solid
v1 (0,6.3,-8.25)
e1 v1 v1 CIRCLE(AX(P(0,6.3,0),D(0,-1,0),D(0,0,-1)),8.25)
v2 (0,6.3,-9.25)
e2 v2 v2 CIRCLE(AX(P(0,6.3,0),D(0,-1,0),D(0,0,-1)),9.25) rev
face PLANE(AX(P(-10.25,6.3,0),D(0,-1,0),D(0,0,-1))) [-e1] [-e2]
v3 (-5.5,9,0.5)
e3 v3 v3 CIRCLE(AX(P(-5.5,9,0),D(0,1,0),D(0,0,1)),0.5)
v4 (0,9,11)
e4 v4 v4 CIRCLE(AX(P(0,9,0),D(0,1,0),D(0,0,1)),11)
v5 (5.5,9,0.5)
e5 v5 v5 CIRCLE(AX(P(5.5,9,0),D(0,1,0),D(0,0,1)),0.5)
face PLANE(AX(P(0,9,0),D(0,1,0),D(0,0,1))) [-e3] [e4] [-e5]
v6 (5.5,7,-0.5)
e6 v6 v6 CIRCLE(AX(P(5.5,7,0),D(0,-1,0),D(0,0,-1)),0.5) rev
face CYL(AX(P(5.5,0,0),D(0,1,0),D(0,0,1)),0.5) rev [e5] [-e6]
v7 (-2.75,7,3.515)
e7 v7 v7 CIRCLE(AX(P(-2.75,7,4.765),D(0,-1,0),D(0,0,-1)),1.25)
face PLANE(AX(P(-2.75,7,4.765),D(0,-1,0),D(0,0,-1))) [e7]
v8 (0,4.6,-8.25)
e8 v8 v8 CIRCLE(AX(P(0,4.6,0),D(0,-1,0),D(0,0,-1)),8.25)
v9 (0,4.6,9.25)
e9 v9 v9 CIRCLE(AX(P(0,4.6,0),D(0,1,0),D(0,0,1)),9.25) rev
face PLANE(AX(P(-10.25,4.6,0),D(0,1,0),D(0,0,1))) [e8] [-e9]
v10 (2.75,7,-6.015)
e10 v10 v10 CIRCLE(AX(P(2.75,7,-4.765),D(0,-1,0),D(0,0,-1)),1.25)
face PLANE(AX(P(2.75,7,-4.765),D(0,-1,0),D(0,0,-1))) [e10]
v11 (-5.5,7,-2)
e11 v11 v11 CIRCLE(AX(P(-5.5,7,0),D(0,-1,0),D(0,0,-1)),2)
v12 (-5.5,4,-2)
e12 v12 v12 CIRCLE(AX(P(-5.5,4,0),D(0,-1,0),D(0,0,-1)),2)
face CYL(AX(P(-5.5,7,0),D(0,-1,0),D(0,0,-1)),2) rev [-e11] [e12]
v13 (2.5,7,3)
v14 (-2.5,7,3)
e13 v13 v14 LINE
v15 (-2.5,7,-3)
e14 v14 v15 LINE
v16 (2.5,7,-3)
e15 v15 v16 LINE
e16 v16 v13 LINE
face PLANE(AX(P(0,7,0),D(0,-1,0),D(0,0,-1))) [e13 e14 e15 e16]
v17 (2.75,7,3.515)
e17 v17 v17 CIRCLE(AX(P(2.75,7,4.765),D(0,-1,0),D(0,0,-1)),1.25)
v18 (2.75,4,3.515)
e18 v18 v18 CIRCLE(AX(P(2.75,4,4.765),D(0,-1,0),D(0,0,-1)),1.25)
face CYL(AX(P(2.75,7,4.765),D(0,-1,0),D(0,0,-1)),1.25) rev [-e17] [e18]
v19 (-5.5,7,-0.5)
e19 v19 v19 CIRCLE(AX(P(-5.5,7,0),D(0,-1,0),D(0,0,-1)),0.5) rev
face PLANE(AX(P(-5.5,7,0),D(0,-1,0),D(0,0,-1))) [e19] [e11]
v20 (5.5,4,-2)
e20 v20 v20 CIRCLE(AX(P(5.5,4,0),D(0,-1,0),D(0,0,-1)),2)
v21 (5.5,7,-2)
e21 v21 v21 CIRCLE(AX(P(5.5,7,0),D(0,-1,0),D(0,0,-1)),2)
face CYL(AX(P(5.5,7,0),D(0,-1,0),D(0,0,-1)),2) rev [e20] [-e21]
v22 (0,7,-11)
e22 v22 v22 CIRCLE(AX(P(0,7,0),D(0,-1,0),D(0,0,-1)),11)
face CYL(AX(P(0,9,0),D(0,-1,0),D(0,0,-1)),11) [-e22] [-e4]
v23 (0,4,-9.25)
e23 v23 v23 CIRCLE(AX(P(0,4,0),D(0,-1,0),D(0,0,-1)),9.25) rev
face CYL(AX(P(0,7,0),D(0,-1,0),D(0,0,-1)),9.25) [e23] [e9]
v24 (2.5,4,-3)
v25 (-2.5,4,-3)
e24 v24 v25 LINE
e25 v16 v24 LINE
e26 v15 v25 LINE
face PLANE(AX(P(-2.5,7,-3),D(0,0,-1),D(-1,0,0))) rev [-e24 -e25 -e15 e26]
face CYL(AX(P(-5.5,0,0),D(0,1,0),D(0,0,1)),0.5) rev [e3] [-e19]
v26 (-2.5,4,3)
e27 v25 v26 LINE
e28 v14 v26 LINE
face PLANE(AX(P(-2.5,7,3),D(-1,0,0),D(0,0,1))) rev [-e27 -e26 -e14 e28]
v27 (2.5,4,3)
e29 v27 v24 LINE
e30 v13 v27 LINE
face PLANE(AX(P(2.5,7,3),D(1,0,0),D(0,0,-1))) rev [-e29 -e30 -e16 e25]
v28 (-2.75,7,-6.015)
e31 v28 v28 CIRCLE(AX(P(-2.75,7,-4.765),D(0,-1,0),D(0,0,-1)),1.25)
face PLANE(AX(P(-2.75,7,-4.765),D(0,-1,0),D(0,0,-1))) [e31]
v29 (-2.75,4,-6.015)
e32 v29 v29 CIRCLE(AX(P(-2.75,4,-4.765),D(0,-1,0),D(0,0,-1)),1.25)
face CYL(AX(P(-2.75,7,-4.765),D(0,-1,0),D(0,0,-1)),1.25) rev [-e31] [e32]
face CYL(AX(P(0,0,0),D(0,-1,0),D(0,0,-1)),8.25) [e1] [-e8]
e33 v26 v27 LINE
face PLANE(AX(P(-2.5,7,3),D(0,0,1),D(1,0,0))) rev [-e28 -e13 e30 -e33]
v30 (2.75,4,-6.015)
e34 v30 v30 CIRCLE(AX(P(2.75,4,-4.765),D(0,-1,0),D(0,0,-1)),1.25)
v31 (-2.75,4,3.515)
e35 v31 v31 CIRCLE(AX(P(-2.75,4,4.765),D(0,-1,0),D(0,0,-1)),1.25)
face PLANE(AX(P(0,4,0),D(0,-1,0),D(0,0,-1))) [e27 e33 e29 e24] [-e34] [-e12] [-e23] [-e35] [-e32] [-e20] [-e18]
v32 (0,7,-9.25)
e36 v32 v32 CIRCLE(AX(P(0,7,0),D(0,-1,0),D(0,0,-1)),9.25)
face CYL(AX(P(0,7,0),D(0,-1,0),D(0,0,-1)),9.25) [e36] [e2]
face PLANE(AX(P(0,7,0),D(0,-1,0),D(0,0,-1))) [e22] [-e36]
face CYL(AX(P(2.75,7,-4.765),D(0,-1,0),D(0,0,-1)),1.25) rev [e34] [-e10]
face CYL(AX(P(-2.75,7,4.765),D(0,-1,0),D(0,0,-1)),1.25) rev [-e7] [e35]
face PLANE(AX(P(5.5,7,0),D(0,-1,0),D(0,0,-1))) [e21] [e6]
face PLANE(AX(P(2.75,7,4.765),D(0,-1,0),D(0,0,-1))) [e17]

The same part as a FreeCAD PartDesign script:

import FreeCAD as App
import Part
import Sketcher
from FreeCAD import Vector
Q = App.Units.Quantity


def edges_at(feature, points):
    """Names of the edges that pass closest to the given points."""
    edges = feature.Shape.Edges
    near = lambda p: min(range(len(edges)), key=lambda i: edges[i].distToShape(Part.Vertex(*p))[0])
    return sorted({f"Edge{near(p) + 1}" for p in points})


def add_polygon(sketch, points):
    """Adds a closed chain of lines whose ends are joined by coincident constraints."""
    first, n = sketch.GeometryCount, len(points)
    for a, b in zip(points, points[1:] + points[:1]):
        sketch.addGeometry(Part.LineSegment(App.Vector(*a, 0), App.Vector(*b, 0)), False)
    for i in range(n):
        sketch.addConstraint(Sketcher.Constraint("Coincident", first + i, 2, first + (i + 1) % n, 1))

doc = App.newDocument("Part")
body = doc.addObject("PartDesign::Body", "Body")

sketch1 = body.newObject("Sketcher::SketchObject", "Sketch")
sketch1.AttachmentSupport = (doc.getObject("XZ_Plane"), [""])
sketch1.MapMode = "FlatFace"
sketch1.addGeometry(Part.Circle(Vector(0, 0, 0), Vector(0, 0, 1), 11), False)
sketch1.addConstraint([
    Sketcher.Constraint("Coincident", 0, 3, -1, 1),
    Sketcher.Constraint("Diameter", 0, Q("22 mm")),
])
pad1 = body.newObject("PartDesign::Pad", "Pad")
pad1.Profile = sketch1
pad1.Length = 9
pad1.Reversed = True

sketch2 = body.newObject("Sketcher::SketchObject", "Sketch001")
sketch2.AttachmentSupport = (doc.getObject("XZ_Plane"), [""])
sketch2.MapMode = "FlatFace"
sketch2.AttachmentOffset = App.Placement(Vector(0, 0, -9), App.Rotation())
sketch2.addGeometry([
    Part.Circle(Vector(-5.5, 0, 0), Vector(0, 0, 1), 0.5),
    Part.Circle(Vector(5.5, 0, 0), Vector(0, 0, 1), 0.5),
], False)
sketch2.addConstraint([
    Sketcher.Constraint("Equal", 0, 1),
    Sketcher.Constraint("Symmetric", 0, 3, 1, 3, -1, 1),
    Sketcher.Constraint("PointOnObject", 0, 3, -1),
    Sketcher.Constraint("Diameter", 0, Q("1 mm")),
    Sketcher.Constraint("DistanceX", 0, 3, 1, 3, Q("11 mm")),
])
pocket1 = body.newObject("PartDesign::Pocket", "Pocket")
pocket1.Profile = sketch2
pocket1.Type = "ThroughAll"
pocket1.Reversed = True

sketch3 = body.newObject("Sketcher::SketchObject", "Sketch002")
sketch3.AttachmentSupport = (doc.getObject("XZ_Plane"), [""])
sketch3.MapMode = "FlatFace"
sketch3.addGeometry([
    Part.Circle(Vector(0, 0, 0), Vector(0, 0, 1), 17),
    Part.Circle(Vector(0, 0, 0), Vector(0, 0, 1), 9),
], False)
sketch3.addConstraint([
    Sketcher.Constraint("Coincident", 0, 3, -1, 1),
    Sketcher.Constraint("Coincident", 1, 3, -1, 1),
    Sketcher.Constraint("Diameter", 1, Q("18.5 mm")),
    Sketcher.Constraint("Diameter", 0, Q("33.098269 mm")),
])
pocket2 = body.newObject("PartDesign::Pocket", "Pocket001")
pocket2.Profile = sketch3
pocket2.Length = 7

sketch4 = body.newObject("Sketcher::SketchObject", "Sketch003")
sketch4.AttachmentSupport = (doc.getObject("XY_Plane"), [""])
sketch4.MapMode = "FlatFace"
add_polygon(sketch4, [(-10.2, 6.3), (-10.2, 4.6), (-8.2, 4.6), (-8.2, 6.3)])
add_polygon(sketch4, [(-10.2, 3.2), (-10.2, 1.5), (-8.2, 1.5), (-8.2, 3.2)])
sketch4.addConstraint([
    Sketcher.Constraint("Vertical", 0),
    Sketcher.Constraint("Horizontal", 1),
    Sketcher.Constraint("Vertical", 2),
    Sketcher.Constraint("Horizontal", 3),
    Sketcher.Constraint("Vertical", 4),
    Sketcher.Constraint("Horizontal", 5),
    Sketcher.Constraint("Vertical", 6),
    Sketcher.Constraint("Horizontal", 7),
    Sketcher.Constraint("Vertical", 3, 2, 4, 2),
    Sketcher.Constraint("Vertical", 2, 2, 5, 2),
    Sketcher.Constraint("Equal", 2, 4),
    Sketcher.Constraint("DistanceX", 1, 1, 1, 2, Q("2 mm")),
    Sketcher.Constraint("DistanceY", 0, 2, 0, 1, Q("1.7 mm")),
    Sketcher.Constraint("DistanceY", -1, 1, 0, 2, Q("4.6 mm")),
    Sketcher.Constraint("DistanceY", -1, 1, 4, 2, Q("1.5 mm")),
    Sketcher.Constraint("DistanceX", 0, 2, -1, 1, Q("10.25 mm")),
])
groove = body.newObject("PartDesign::Groove", "Groove")
groove.Profile = sketch4
groove.ReferenceAxis = (sketch4, ["V_Axis"])
groove.Angle = 360

sketch5 = body.newObject("Sketcher::SketchObject", "Sketch004")
sketch5.AttachmentSupport = (doc.getObject("XZ_Plane"), [""])
sketch5.MapMode = "FlatFace"
add_polygon(sketch5, [(-2, 3), (-2, -3), (2, -3), (2, 3)])
sketch5.addConstraint([
    Sketcher.Constraint("Vertical", 0),
    Sketcher.Constraint("Horizontal", 1),
    Sketcher.Constraint("Vertical", 2),
    Sketcher.Constraint("Horizontal", 3),
    Sketcher.Constraint("Symmetric", 0, 2, 2, 2, -1, 1),
    Sketcher.Constraint("DistanceX", 1, 1, 1, 2, Q("5 mm")),
    Sketcher.Constraint("DistanceY", 0, 2, 0, 1, Q("6 mm")),
])
pocket3 = body.newObject("PartDesign::Pocket", "Pocket002")
pocket3.Profile = sketch5
pocket3.Length = 7

sketch6 = body.newObject("Sketcher::SketchObject", "Sketch005")
sketch6.AttachmentSupport = (doc.getObject("XZ_Plane"), [""])
sketch6.MapMode = "FlatFace"
sketch6.addGeometry([
    Part.Circle(Vector(-5.5, 0, 0), Vector(0, 0, 1), 1.2),
    Part.Circle(Vector(5.5, 0, 0), Vector(0, 0, 1), 1.2),
], False)
sketch6.addConstraint([
    Sketcher.Constraint("Equal", 0, 1),
    Sketcher.Constraint("Symmetric", 0, 3, 1, 3, -1, 1),
    Sketcher.Constraint("PointOnObject", 0, 3, -1),
    Sketcher.Constraint("Diameter", 0, Q("2.5 mm")),
    Sketcher.Constraint("DistanceX", 0, 3, 1, 3, Q("11 mm")),
])
pocket4 = body.newObject("PartDesign::Pocket", "Pocket003")
pocket4.Profile = sketch6
pocket4.Length = 1.5

sketch7 = body.newObject("Sketcher::SketchObject", "Sketch006")
sketch7.AttachmentSupport = (doc.getObject("XZ_Plane"), [""])
sketch7.MapMode = "FlatFace"
add_polygon(sketch7, [(-4, 4), (-4, -4), (4, -4), (4, 4)])
add_polygon(sketch7, [(2, -3), (-2, -3), (-2, 3), (2, 3)])
sketch7.addConstraint([
    Sketcher.Constraint("Vertical", 0),
    Sketcher.Constraint("Horizontal", 1),
    Sketcher.Constraint("Vertical", 2),
    Sketcher.Constraint("Horizontal", 3),
    Sketcher.Constraint("Horizontal", 4),
    Sketcher.Constraint("Vertical", 5),
    Sketcher.Constraint("Horizontal", 6),
    Sketcher.Constraint("Vertical", 7),
    Sketcher.Constraint("Symmetric", 0, 2, 2, 2, -1, 1),
    Sketcher.Constraint("Symmetric", 4, 2, 6, 2, -1, 1),
    Sketcher.Constraint("DistanceX", 1, 1, 1, 2, Q("7 mm")),
    Sketcher.Constraint("DistanceX", 4, 2, 4, 1, Q("5 mm")),
    Sketcher.Constraint("DistanceY", 0, 2, 0, 1, Q("8 mm")),
    Sketcher.Constraint("DistanceY", 5, 1, 5, 2, Q("6 mm")),
])
pocket5 = body.newObject("PartDesign::Pocket", "Pocket004")
pocket5.Profile = sketch7
pocket5.Length = 2
doc.recompute()

chamfer = body.newObject("PartDesign::Chamfer", "Chamfer")
chamfer.Base = (pocket5, edges_at(pocket5, [(0, 0, 9.25)]))
chamfer.Size = 0.5

sketch8 = body.newObject("Sketcher::SketchObject", "Sketch007")
sketch8.AttachmentSupport = (doc.getObject("XZ_Plane"), [""])
sketch8.MapMode = "FlatFace"
sketch8.addGeometry(Part.Circle(Vector(0, 0, 0), Vector(0, 0, 1), 17), False)
sketch8.addConstraint([
    Sketcher.Constraint("Coincident", 0, 3, -1, 1),
    Sketcher.Constraint("Diameter", 0, Q("33.411273 mm")),
])
pocket6 = body.newObject("PartDesign::Pocket", "Pocket005")
pocket6.Profile = sketch8
pocket6.Length = 4

sketch9 = body.newObject("Sketcher::SketchObject", "Sketch008")
sketch9.AttachmentSupport = (doc.getObject("XZ_Plane"), [""])
sketch9.MapMode = "FlatFace"
sketch9.AttachmentOffset = App.Placement(Vector(0, 0, -4), App.Rotation())
sketch9.addGeometry([
    Part.Circle(Vector(-5.5, 0, 0), Vector(0, 0, 1), 2),
    Part.Circle(Vector(5.5, 0, 0), Vector(0, 0, 1), 2),
], False)
sketch9.addConstraint([
    Sketcher.Constraint("Equal", 0, 1),
    Sketcher.Constraint("Symmetric", 0, 3, 1, 3, -1, 1),
    Sketcher.Constraint("PointOnObject", 0, 3, -1),
    Sketcher.Constraint("Diameter", 0, Q("4 mm")),
    Sketcher.Constraint("DistanceX", 0, 3, 1, 3, Q("11 mm")),
])
pocket7 = body.newObject("PartDesign::Pocket", "Pocket006")
pocket7.Profile = sketch9
pocket7.Length = 3

sketch10 = body.newObject("Sketcher::SketchObject", "Sketch009")
sketch10.AttachmentSupport = (doc.getObject("XZ_Plane"), [""])
sketch10.MapMode = "FlatFace"
sketch10.AttachmentOffset = App.Placement(Vector(0, 0, -4), App.Rotation())
sketch10.addGeometry([
    Part.Circle(Vector(-2.8, 4.8, 0), Vector(0, 0, 1), 1.2),
    Part.Circle(Vector(2.8, 4.8, 0), Vector(0, 0, 1), 1.2),
    Part.Circle(Vector(2.8, -4.8, 0), Vector(0, 0, 1), 1.2),
    Part.Circle(Vector(-2.8, -4.8, 0), Vector(0, 0, 1), 1.2),
], False)
sketch10.addConstraint([
    Sketcher.Constraint("Equal", 0, 1),
    Sketcher.Constraint("Equal", 1, 2),
    Sketcher.Constraint("Equal", 2, 3),
    Sketcher.Constraint("Symmetric", 0, 3, 2, 3, -1, 1),
    Sketcher.Constraint("Symmetric", 1, 3, 3, 3, -1, 1),
    Sketcher.Constraint("Symmetric", 0, 3, 1, 3, -2),
    Sketcher.Constraint("Diameter", 0, Q("2.5 mm")),
    Sketcher.Constraint("DistanceX", 0, 3, 1, 3, Q("5.5 mm")),
    Sketcher.Constraint("DistanceY", 2, 3, 1, 3, Q("9.53 mm")),
])
pocket8 = body.newObject("PartDesign::Pocket", "Pocket007")
pocket8.Profile = sketch10
pocket8.Length = 3

doc.recompute()
